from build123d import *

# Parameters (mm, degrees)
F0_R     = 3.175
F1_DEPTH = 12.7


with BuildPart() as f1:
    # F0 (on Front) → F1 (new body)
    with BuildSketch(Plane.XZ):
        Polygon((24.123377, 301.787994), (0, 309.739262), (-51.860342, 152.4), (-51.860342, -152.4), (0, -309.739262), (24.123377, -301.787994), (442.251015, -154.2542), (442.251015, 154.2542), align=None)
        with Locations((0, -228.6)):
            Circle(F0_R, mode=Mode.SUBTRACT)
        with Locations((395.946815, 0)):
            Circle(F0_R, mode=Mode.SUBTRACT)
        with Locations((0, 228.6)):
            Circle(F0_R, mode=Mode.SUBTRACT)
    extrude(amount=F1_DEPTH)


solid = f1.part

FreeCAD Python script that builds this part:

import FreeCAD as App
import Part
import Sketcher
Q = App.Units.Quantity


def add_polygon(sketch, points):
    """Adds a closed chain of lines whose ends are joined by coincident constraints."""
    first, n = sketch.GeometryCount, len(points)
    for a, b in zip(points, points[1:] + points[:1]):
        sketch.addGeometry(Part.LineSegment(App.Vector(*a, 0), App.Vector(*b, 0)), False)
    for i in range(n):
        sketch.addConstraint(Sketcher.Constraint("Coincident", first + i, 2, first + (i + 1) % n, 1))

doc = App.newDocument("Part")
body = doc.addObject("PartDesign::Body", "Body")

sketch1 = doc.addObject("Sketcher::SketchObject", "Sketch")
body.addObject(sketch1)
sketch1.AttachmentSupport = (doc.XZ_Plane, [""])
sketch1.MapMode = "FlatFace"
add_polygon(sketch1, [(24.1, 301.8), (0, 309.7), (-51.9, 152.4), (-51.9, -152.4), (0, -309.7), (24.1, -301.8), (442.3, -154.3), (442.3, 154.3)])
sketch1.addGeometry(Part.Circle(App.Vector(0, -228.6, 0), App.Vector(0, 0, 1), 3.2), False)
sketch1.addGeometry(Part.Circle(App.Vector(0, 228.6, 0), App.Vector(0, 0, 1), 3.2), False)
sketch1.addGeometry(Part.Circle(App.Vector(395.9, 0, 0), App.Vector(0, 0, 1), 3.2), False)
sketch1.addConstraint([
    Sketcher.Constraint("Vertical", 2),
    Sketcher.Constraint("Vertical", 6),
    Sketcher.Constraint("Equal", 8, 9),
    Sketcher.Constraint("Equal", 9, 10),
    Sketcher.Constraint("Symmetric", 8, 3, 9, 3, -1, 1),
    Sketcher.Constraint("Symmetric", 0, 2, 3, 2, -1, 1),
    Sketcher.Constraint("Symmetric", 4, 2, 7, 2, -1),
    Sketcher.Constraint("PointOnObject", 8, 3, -2),
    Sketcher.Constraint("PointOnObject", 10, 3, -1),
    Sketcher.Constraint("PointOnObject", 0, 2, -2),
    Sketcher.Constraint("Perpendicular", 0, 1),
    Sketcher.Constraint("Perpendicular", 3, 4),
    Sketcher.Constraint("Equal", 5, 7),
    Sketcher.Constraint("Diameter", 8, Q("0.25 in")),
    Sketcher.Constraint("DistanceY", 2, 2, 2, 1, Q("12 in")),
    Sketcher.Constraint("Distance", 0, Q("1 in")),
    Sketcher.Constraint("DistanceY", 8, 3, -1, 1, Q("9 in")),
    Sketcher.Constraint("DistanceY", 6, 1, 6, 2, Q("12.146 in")),
    Sketcher.Constraint("DistanceX", 10, 3, 5, 2, Q("1.823 in")),
    Sketcher.Constraint("DistanceY", -1, 1, 0, 2, Q("309.739262 mm")),
    Sketcher.Constraint("DistanceX", 2, 2, 4, 2, Q("75.983719 mm")),
    Sketcher.Constraint("DistanceX", 4, 2, 10, 3, Q("371.823438 mm")),
])
pad1 = doc.addObject("PartDesign::Pad", "Pad")
body.addObject(pad1)
pad1.Profile = sketch1
pad1.Length = Q("0.5 in")

doc.recompute()
